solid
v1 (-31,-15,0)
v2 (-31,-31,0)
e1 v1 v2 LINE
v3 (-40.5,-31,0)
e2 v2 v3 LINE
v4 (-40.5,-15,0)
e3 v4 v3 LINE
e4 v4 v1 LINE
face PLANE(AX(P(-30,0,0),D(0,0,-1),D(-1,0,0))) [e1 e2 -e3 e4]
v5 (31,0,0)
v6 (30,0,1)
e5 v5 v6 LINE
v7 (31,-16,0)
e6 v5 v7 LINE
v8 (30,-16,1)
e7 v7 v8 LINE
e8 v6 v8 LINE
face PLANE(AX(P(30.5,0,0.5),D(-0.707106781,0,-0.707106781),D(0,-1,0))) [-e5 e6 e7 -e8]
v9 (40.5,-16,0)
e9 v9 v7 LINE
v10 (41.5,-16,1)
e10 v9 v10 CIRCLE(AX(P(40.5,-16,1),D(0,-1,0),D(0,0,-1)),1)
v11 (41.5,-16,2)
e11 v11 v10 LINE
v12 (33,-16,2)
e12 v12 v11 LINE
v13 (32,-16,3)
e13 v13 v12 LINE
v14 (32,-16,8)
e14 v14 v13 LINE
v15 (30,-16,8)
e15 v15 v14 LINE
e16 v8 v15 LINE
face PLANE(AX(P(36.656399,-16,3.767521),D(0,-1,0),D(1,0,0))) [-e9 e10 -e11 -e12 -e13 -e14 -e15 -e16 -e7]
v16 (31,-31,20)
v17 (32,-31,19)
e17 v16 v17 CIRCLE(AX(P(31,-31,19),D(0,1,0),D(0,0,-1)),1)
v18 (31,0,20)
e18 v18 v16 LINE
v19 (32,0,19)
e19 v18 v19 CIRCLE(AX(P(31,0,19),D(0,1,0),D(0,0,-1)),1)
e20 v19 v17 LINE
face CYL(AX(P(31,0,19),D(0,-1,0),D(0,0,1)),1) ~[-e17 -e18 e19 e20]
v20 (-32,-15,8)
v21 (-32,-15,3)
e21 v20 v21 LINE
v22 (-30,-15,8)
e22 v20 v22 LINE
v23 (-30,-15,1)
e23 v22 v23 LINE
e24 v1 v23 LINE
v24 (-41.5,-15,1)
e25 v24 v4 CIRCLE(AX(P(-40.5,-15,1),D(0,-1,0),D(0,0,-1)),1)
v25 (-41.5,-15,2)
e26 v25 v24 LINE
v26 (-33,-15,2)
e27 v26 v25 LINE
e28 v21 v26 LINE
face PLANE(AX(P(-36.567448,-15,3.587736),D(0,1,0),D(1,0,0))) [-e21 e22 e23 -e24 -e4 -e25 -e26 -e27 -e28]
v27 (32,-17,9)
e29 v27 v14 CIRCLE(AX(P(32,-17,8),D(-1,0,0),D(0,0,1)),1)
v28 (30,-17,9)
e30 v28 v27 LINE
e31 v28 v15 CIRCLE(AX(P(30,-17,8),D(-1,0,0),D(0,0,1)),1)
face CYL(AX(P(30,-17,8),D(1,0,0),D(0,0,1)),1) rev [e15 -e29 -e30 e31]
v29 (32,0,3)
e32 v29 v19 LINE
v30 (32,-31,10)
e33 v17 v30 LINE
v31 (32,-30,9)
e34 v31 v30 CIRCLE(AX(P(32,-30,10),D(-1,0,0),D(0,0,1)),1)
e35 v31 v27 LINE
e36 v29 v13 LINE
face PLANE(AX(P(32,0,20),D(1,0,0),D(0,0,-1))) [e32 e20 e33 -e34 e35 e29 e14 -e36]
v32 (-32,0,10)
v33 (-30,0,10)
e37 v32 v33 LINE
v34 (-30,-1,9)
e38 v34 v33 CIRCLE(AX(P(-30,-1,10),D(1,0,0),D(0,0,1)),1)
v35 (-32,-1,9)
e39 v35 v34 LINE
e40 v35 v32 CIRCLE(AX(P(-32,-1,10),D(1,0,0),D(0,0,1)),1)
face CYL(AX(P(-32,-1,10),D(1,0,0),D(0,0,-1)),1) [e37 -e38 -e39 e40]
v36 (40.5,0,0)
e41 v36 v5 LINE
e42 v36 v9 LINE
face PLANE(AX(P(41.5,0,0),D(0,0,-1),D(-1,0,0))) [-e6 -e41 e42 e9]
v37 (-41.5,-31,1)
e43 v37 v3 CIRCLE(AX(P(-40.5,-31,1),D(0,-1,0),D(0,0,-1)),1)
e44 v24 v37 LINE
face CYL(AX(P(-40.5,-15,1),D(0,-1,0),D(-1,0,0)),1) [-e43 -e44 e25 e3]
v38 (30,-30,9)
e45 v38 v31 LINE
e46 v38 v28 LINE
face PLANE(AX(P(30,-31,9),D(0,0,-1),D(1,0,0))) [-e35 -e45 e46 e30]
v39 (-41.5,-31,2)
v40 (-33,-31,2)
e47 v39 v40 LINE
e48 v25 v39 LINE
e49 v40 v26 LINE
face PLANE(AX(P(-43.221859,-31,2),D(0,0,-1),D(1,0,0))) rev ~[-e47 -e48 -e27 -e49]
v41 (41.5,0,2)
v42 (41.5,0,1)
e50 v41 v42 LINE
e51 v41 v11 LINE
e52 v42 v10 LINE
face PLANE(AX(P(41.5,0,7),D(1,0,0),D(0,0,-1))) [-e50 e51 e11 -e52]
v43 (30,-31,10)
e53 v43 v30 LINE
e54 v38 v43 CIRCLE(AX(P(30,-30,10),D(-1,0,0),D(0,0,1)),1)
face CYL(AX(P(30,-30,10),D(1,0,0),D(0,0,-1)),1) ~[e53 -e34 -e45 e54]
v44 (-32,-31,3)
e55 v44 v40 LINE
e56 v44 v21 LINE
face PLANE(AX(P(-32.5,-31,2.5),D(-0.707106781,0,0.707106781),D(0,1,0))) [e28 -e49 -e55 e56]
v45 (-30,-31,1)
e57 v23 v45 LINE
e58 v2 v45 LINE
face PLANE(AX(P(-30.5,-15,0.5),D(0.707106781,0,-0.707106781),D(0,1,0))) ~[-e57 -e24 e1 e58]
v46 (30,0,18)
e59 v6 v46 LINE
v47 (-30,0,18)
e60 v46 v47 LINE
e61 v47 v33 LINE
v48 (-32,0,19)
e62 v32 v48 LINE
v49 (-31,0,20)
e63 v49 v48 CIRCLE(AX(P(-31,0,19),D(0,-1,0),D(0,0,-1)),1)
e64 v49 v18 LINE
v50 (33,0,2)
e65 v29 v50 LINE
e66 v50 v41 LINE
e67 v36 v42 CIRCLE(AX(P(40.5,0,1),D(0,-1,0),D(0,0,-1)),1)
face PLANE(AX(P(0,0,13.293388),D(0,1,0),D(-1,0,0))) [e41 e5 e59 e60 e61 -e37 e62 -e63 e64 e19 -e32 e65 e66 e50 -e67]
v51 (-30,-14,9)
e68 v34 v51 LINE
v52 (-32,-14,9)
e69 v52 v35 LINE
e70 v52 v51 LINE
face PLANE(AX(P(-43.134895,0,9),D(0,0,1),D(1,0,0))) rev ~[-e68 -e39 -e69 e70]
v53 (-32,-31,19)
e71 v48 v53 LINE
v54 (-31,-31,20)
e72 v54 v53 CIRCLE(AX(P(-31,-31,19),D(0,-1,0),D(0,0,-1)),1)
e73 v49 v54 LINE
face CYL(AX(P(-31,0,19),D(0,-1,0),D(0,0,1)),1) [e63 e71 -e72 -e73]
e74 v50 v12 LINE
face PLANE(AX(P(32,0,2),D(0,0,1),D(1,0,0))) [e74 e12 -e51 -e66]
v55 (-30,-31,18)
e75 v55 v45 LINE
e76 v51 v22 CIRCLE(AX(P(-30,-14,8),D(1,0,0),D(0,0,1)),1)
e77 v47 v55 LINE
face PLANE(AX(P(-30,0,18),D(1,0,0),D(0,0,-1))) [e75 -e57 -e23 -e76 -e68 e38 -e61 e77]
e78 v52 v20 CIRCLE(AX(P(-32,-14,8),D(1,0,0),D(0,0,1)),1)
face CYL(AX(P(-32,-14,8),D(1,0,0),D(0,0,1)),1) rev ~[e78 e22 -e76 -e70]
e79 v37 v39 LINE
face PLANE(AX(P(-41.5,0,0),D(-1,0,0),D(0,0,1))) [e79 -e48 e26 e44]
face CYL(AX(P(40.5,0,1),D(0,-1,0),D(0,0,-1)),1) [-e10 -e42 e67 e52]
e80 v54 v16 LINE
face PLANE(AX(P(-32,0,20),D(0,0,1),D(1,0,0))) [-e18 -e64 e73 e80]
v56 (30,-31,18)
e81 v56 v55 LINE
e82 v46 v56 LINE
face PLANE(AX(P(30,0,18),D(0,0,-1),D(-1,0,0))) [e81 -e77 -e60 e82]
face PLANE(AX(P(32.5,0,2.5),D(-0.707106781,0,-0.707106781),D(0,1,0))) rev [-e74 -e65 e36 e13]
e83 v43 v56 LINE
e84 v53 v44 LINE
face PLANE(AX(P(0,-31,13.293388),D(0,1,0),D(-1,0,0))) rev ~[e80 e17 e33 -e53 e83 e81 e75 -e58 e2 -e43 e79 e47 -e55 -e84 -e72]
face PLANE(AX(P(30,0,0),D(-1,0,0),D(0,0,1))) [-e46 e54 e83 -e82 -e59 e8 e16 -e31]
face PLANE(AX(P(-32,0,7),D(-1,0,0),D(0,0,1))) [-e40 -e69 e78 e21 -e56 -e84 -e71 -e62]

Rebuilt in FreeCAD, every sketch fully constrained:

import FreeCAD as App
import Part
import Sketcher
from FreeCAD import Vector


def edges_at(feature, points):
    """Names of the edges that pass closest to the given points."""
    edges = feature.Shape.Edges
    near = lambda p: min(range(len(edges)), key=lambda i: edges[i].distToShape(Part.Vertex(*p))[0])
    return sorted({f"Edge{near(p) + 1}" for p in points})

doc = App.newDocument("Part")
body = doc.addObject("PartDesign::Body", "Body")

sketch1 = body.newObject("Sketcher::SketchObject", "Sketch")
sketch1.AttachmentSupport = (doc.getObject("XZ_Plane"), [""])
sketch1.MapMode = "FlatFace"
sketch1.addGeometry([
    Part.LineSegment(Vector(32, 20, 0), Vector(-32, 20, 0)),
    Part.LineSegment(Vector(-32, 20, 0), Vector(-32, 7, 0)),
    Part.LineSegment(Vector(-32, 7, 0), Vector(-41.5, 7, 0)),
    Part.LineSegment(Vector(-41.5, 7, 0), Vector(-41.5, 0, 0)),
    Part.LineSegment(Vector(-41.5, 0, 0), Vector(-30, 0, 0)),
    Part.LineSegment(Vector(-30, 0, 0), Vector(-30, 18, 0)),
    Part.LineSegment(Vector(-30, 18, 0), Vector(30, 18, 0)),
    Part.LineSegment(Vector(30, 18, 0), Vector(30, 0, 0)),
    Part.LineSegment(Vector(30, 0, 0), Vector(41.5, 0, 0)),
    Part.LineSegment(Vector(41.5, 0, 0), Vector(41.5, 7, 0)),
    Part.LineSegment(Vector(41.5, 7, 0), Vector(32, 7, 0)),
    Part.LineSegment(Vector(32, 7, 0), Vector(32, 20, 0)),
], False)
sketch1.addConstraint([
    Sketcher.Constraint("Coincident", 0, 2, 1, 1),
    Sketcher.Constraint("Coincident", 1, 2, 2, 1),
    Sketcher.Constraint("Coincident", 2, 2, 3, 1),
    Sketcher.Constraint("Coincident", 3, 2, 4, 1),
    Sketcher.Constraint("Coincident", 4, 2, 5, 1),
    Sketcher.Constraint("Coincident", 5, 2, 6, 1),
    Sketcher.Constraint("Coincident", 6, 2, 7, 1),
    Sketcher.Constraint("Coincident", 7, 2, 8, 1),
    Sketcher.Constraint("Coincident", 8, 2, 9, 1),
    Sketcher.Constraint("Coincident", 9, 2, 10, 1),
    Sketcher.Constraint("Coincident", 10, 2, 11, 1),
    Sketcher.Constraint("Coincident", 11, 2, 0, 1),
    Sketcher.Constraint("Horizontal", 0),
    Sketcher.Constraint("Vertical", 1),
    Sketcher.Constraint("Horizontal", 2),
    Sketcher.Constraint("Vertical", 3),
    Sketcher.Constraint("Horizontal", 4),
    Sketcher.Constraint("Vertical", 5),
    Sketcher.Constraint("Horizontal", 6),
    Sketcher.Constraint("Vertical", 7),
    Sketcher.Constraint("Horizontal", 8),
    Sketcher.Constraint("Vertical", 9),
    Sketcher.Constraint("Horizontal", 10),
    Sketcher.Constraint("Vertical", 11),
    Sketcher.Constraint("Symmetric", 4, 2, 7, 2, -1, 1),
    Sketcher.Constraint("Symmetric", 3, 2, 8, 2, -2),
    Sketcher.Constraint("Symmetric", 1, 2, 10, 2, -2),
    Sketcher.Constraint("DistanceX", 0, 2, 0, 1, 64.0),
    Sketcher.Constraint("DistanceX", 6, 1, 6, 2, 60.0),
    Sketcher.Constraint("DistanceY", 1, 2, 1, 1, 13.0),
    Sketcher.Constraint("DistanceY", 3, 2, 3, 1, 7.0),
    Sketcher.Constraint("DistanceY", 5, 1, 5, 2, 18.0),
    Sketcher.Constraint("DistanceX", 2, 2, 2, 1, 9.5),
])
pad1 = body.newObject("PartDesign::Pad", "Pad")
pad1.Profile = sketch1
pad1.Length = 31

sketch2 = body.newObject("Sketcher::SketchObject", "Sketch001")
sketch2.AttachmentSupport = (doc.getObject("XZ_Plane"), [""])
sketch2.MapMode = "FlatFace"
sketch2.addGeometry([
    Part.LineSegment(Vector(-43.134895, -1.824528, 0), Vector(-43.134895, 9, 0)),
    Part.LineSegment(Vector(-43.134895, 9, 0), Vector(-30, 9, 0)),
    Part.LineSegment(Vector(-30, 9, 0), Vector(-30, -1.824528, 0)),
    Part.LineSegment(Vector(-30, -1.824528, 0), Vector(-43.134895, -1.824528, 0)),
], False)
sketch2.addConstraint([
    Sketcher.Constraint("Coincident", 0, 2, 1, 1),
    Sketcher.Constraint("Coincident", 1, 2, 2, 1),
    Sketcher.Constraint("Coincident", 2, 2, 3, 1),
    Sketcher.Constraint("Coincident", 3, 2, 0, 1),
    Sketcher.Constraint("Vertical", 0),
    Sketcher.Constraint("Horizontal", 1),
    Sketcher.Constraint("Vertical", 2),
    Sketcher.Constraint("Horizontal", 3),
    Sketcher.Constraint("DistanceY", -1, 1, 0, 2, 9.0),
    Sketcher.Constraint("DistanceX", 1, 2, -1, 1, 30.0),
    Sketcher.Constraint("DistanceY", 0, 1, 0, 2, 10.824528),
    Sketcher.Constraint("DistanceX", 1, 1, 1, 2, 13.134895),
])
pocket1 = body.newObject("PartDesign::Pocket", "Pocket")
pocket1.Profile = sketch2
pocket1.Length = 15
pocket1.Reversed = True

sketch3 = body.newObject("Sketcher::SketchObject", "Sketch002")
sketch3.AttachmentSupport = (doc.getObject("XZ_Plane"), [""])
sketch3.MapMode = "FlatFace"
sketch3.AttachmentOffset = App.Placement(Vector(0, 0, 31), App.Rotation())
sketch3.addGeometry([
    Part.LineSegment(Vector(30, 9, 0), Vector(30, -1.464958, 0)),
    Part.LineSegment(Vector(30, -1.464958, 0), Vector(43.312798, -1.464958, 0)),
    Part.LineSegment(Vector(43.312798, -1.464958, 0), Vector(43.312798, 9, 0)),
    Part.LineSegment(Vector(43.312798, 9, 0), Vector(30, 9, 0)),
], False)
sketch3.addConstraint([
    Sketcher.Constraint("Coincident", 0, 2, 1, 1),
    Sketcher.Constraint("Coincident", 1, 2, 2, 1),
    Sketcher.Constraint("Coincident", 2, 2, 3, 1),
    Sketcher.Constraint("Coincident", 3, 2, 0, 1),
    Sketcher.Constraint("Vertical", 0),
    Sketcher.Constraint("Horizontal", 1),
    Sketcher.Constraint("Vertical", 2),
    Sketcher.Constraint("Horizontal", 3),
    Sketcher.Constraint("DistanceX", -1, 1, 0, 2, 30.0),
    Sketcher.Constraint("DistanceY", -1, 1, 2, 2, 9.0),
    Sketcher.Constraint("DistanceX", 1, 1, 1, 2, 13.312798),
    Sketcher.Constraint("DistanceY", 0, 2, 0, 1, 10.464958),
])
pocket2 = body.newObject("PartDesign::Pocket", "Pocket001")
pocket2.Profile = sketch3
pocket2.Length = 15
doc.recompute()

fillet = body.newObject("PartDesign::Fillet", "Fillet")
fillet.Base = (pocket2, edges_at(pocket2, [(32, -15.5, 20)]))
fillet.Radius = 1
doc.recompute()

fillet2 = body.newObject("PartDesign::Fillet", "Fillet001")
fillet2.Base = (fillet, edges_at(fillet, [(-32, -15.5, 20)]))
fillet2.Radius = 1
doc.recompute()

fillet3 = body.newObject("PartDesign::Fillet", "Fillet002")
fillet3.Base = (fillet2, edges_at(fillet2, [(-31, -15, 9)]))
fillet3.Radius = 1
doc.recompute()

fillet4 = body.newObject("PartDesign::Fillet", "Fillet003")
fillet4.Base = (fillet3, edges_at(fillet3, [(-31, 0, 9)]))
fillet4.Radius = 1
doc.recompute()

fillet5 = body.newObject("PartDesign::Fillet", "Fillet004")
fillet5.Base = (fillet4, edges_at(fillet4, [(31, -16, 9)]))
fillet5.Radius = 1
doc.recompute()

fillet6 = body.newObject("PartDesign::Fillet", "Fillet005")
fillet6.Base = (fillet5, edges_at(fillet5, [(31, -31, 9)]))
fillet6.Radius = 1
doc.recompute()

fillet7 = body.newObject("PartDesign::Fillet", "Fillet006")
fillet7.Base = (fillet6, edges_at(fillet6, [(41.5, -8, 7)]))
fillet7.Radius = 1
doc.recompute()

chamfer = body.newObject("PartDesign::Chamfer", "Chamfer")
chamfer.Base = (fillet7, edges_at(fillet7, [(30, -8, 0)]))
chamfer.Size = 1
doc.recompute()

fillet8 = body.newObject("PartDesign::Fillet", "Fillet007")
fillet8.Base = (chamfer, edges_at(chamfer, [(41.5, -8, 0)]))
fillet8.Radius = 1
doc.recompute()

fillet9 = body.newObject("PartDesign::Fillet", "Fillet008")
fillet9.Base = (fillet8, edges_at(fillet8, [(-41.5, -23, 7)]))
fillet9.Radius = 1
doc.recompute()

fillet10 = body.newObject("PartDesign::Fillet", "Fillet009")
fillet10.Base = (fillet9, edges_at(fillet9, [(-41.5, -23, 0)]))
fillet10.Radius = 1
doc.recompute()

chamfer2 = body.newObject("PartDesign::Chamfer", "Chamfer001")
chamfer2.Base = (fillet10, edges_at(fillet10, [(-30, -23, 0)]))
chamfer2.Size = 1

sketch4 = body.newObject("Sketcher::SketchObject", "Sketch003")
sketch4.AttachmentSupport = (doc.getObject("XZ_Plane"), [""])
sketch4.MapMode = "FlatFace"
sketch4.addGeometry([
    Part.LineSegment(Vector(32, 2, 0), Vector(32, 8.35841, 0)),
    Part.LineSegment(Vector(32, 8.35841, 0), Vector(42.93087, 8.35841, 0)),
    Part.LineSegment(Vector(42.93087, 8.35841, 0), Vector(42.93087, 2, 0)),
    Part.LineSegment(Vector(42.93087, 2, 0), Vector(32, 2, 0)),
], False)
sketch4.addConstraint([
    Sketcher.Constraint("Coincident", 0, 2, 1, 1),
    Sketcher.Constraint("Coincident", 1, 2, 2, 1),
    Sketcher.Constraint("Coincident", 2, 2, 3, 1),
    Sketcher.Constraint("Coincident", 3, 2, 0, 1),
    Sketcher.Constraint("Vertical", 0),
    Sketcher.Constraint("Horizontal", 1),
    Sketcher.Constraint("Vertical", 2),
    Sketcher.Constraint("Horizontal", 3),
    Sketcher.Constraint("DistanceX", -1, 1, 0, 2, 32.0),
    Sketcher.Constraint("DistanceY", -1, 1, 2, 2, 2.0),
    Sketcher.Constraint("DistanceX", 1, 1, 1, 2, 10.93087),
    Sketcher.Constraint("DistanceY", 0, 1, 0, 2, 6.35841),
])
pocket3 = body.newObject("PartDesign::Pocket", "Pocket002")
pocket3.Profile = sketch4
pocket3.Length = 16
pocket3.Reversed = True

sketch5 = body.newObject("Sketcher::SketchObject", "Sketch004")
sketch5.AttachmentSupport = (doc.getObject("XZ_Plane"), [""])
sketch5.MapMode = "FlatFace"
sketch5.AttachmentOffset = App.Placement(Vector(0, 0, 31), App.Rotation())
sketch5.addGeometry([
    Part.LineSegment(Vector(-43.221859, 8.266699, 0), Vector(-43.221859, 2, 0)),
    Part.LineSegment(Vector(-43.221859, 2, 0), Vector(-32, 2, 0)),
    Part.LineSegment(Vector(-32, 2, 0), Vector(-32, 8.266699, 0)),
    Part.LineSegment(Vector(-32, 8.266699, 0), Vector(-43.221859, 8.266699, 0)),
], False)
sketch5.addConstraint([
    Sketcher.Constraint("Coincident", 0, 2, 1, 1),
    Sketcher.Constraint("Coincident", 1, 2, 2, 1),
    Sketcher.Constraint("Coincident", 2, 2, 3, 1),
    Sketcher.Constraint("Coincident", 3, 2, 0, 1),
    Sketcher.Constraint("Vertical", 0),
    Sketcher.Constraint("Horizontal", 1),
    Sketcher.Constraint("Vertical", 2),
    Sketcher.Constraint("Horizontal", 3),
    Sketcher.Constraint("DistanceY", -1, 1, 0, 2, 2.0),
    Sketcher.Constraint("DistanceX", 1, 2, -1, 1, 32.0),
    Sketcher.Constraint("DistanceY", 0, 2, 0, 1, 6.266699),
    Sketcher.Constraint("DistanceX", 1, 1, 1, 2, 11.221859),
])
pocket4 = body.newObject("PartDesign::Pocket", "Pocket003")
pocket4.Profile = sketch5
pocket4.Length = 17
doc.recompute()

chamfer3 = body.newObject("PartDesign::Chamfer", "Chamfer002")
chamfer3.Base = (pocket4, edges_at(pocket4, [(-32, -23, 2)]))
chamfer3.Size = 1
doc.recompute()

chamfer4 = body.newObject("PartDesign::Chamfer", "Chamfer003")
chamfer4.Base = (chamfer3, edges_at(chamfer3, [(32, -8, 2)]))
chamfer4.Size = 1

doc.recompute()
